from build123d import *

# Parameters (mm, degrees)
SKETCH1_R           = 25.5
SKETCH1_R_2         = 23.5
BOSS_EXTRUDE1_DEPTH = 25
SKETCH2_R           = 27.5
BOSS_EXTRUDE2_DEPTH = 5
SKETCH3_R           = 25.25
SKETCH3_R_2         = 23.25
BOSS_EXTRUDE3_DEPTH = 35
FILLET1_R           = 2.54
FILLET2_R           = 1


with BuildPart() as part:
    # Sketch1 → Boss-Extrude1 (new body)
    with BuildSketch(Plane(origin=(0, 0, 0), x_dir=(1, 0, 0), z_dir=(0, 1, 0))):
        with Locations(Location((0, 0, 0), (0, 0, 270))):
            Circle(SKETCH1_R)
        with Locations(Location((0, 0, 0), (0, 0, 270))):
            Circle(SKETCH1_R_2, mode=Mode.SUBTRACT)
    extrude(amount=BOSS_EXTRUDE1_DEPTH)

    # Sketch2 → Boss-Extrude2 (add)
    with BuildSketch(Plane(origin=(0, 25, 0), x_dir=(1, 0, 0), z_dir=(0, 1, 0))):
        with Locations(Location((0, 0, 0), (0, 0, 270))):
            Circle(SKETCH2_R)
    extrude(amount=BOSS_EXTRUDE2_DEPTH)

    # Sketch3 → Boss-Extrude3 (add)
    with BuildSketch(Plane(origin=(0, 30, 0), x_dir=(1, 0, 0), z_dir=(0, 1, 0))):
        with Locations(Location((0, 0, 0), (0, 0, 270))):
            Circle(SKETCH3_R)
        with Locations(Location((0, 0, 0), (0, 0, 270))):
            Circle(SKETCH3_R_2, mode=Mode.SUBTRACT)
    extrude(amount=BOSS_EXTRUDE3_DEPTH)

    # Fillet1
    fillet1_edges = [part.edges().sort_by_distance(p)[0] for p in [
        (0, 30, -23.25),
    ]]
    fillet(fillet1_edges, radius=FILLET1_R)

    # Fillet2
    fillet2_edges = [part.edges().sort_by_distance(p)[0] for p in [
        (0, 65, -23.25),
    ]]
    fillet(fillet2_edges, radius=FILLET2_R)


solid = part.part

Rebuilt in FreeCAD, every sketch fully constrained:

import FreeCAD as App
import Part
import Sketcher


def edges_at(feature, points):
    """Names of the edges that pass closest to the given points."""
    edges = feature.Shape.Edges
    near = lambda p: min(range(len(edges)), key=lambda i: edges[i].distToShape(Part.Vertex(*p))[0])
    return sorted({f"Edge{near(p) + 1}" for p in points})

doc = App.newDocument("Part")
body = doc.addObject("PartDesign::Body", "Body")

# Sketch on XZ plane
sketch1 = body.newObject("Sketcher::SketchObject", "Sketch")
sketch1.AttachmentSupport = (doc.getObject("XZ_Plane"), [""])
sketch1.MapMode = "FlatFace"
sketch1.addGeometry([
    Part.Circle(App.Vector(0, 0, 0), App.Vector(0, 0, 1), 26),
    Part.Circle(App.Vector(0, 0, 0), App.Vector(0, 0, 1), 24),
], False)
sketch1.addConstraint([
    Sketcher.Constraint("Coincident", 0, 3, -1, 1),
    Sketcher.Constraint("Coincident", 1, 3, -1, 1),
    Sketcher.Constraint("Diameter", 0, 51.0),
    Sketcher.Constraint("Diameter", 1, 47.0),
])
pad1 = body.newObject("PartDesign::Pad", "Pad")
pad1.Profile = sketch1
pad1.Length = 25
pad1.Reversed = True

# Sketch on XZ plane
sketch2 = body.newObject("Sketcher::SketchObject", "Sketch001")
sketch2.AttachmentSupport = (doc.getObject("XZ_Plane"), [""])
sketch2.MapMode = "FlatFace"
sketch2.AttachmentOffset = App.Placement(App.Vector(0, 0, -25), App.Rotation())
sketch2.addGeometry(Part.Circle(App.Vector(0, 0, 0), App.Vector(0, 0, 1), 28), False)
sketch2.addConstraint([
    Sketcher.Constraint("Coincident", 0, 3, -1, 1),
    Sketcher.Constraint("Diameter", 0, 55.0),
])
pad2 = body.newObject("PartDesign::Pad", "Pad001")
pad2.Profile = sketch2
pad2.Length = 5
pad2.Reversed = True

# Sketch on XZ plane
sketch3 = body.newObject("Sketcher::SketchObject", "Sketch002")
sketch3.AttachmentSupport = (doc.getObject("XZ_Plane"), [""])
sketch3.MapMode = "FlatFace"
sketch3.AttachmentOffset = App.Placement(App.Vector(0, 0, -30), App.Rotation())
sketch3.addGeometry([
    Part.Circle(App.Vector(0, 0, 0), App.Vector(0, 0, 1), 25),
    Part.Circle(App.Vector(0, 0, 0), App.Vector(0, 0, 1), 23),
], False)
sketch3.addConstraint([
    Sketcher.Constraint("Coincident", 0, 3, -1, 1),
    Sketcher.Constraint("Coincident", 1, 3, -1, 1),
    Sketcher.Constraint("Diameter", 0, 50.5),
    Sketcher.Constraint("Diameter", 1, 46.5),
])
pad3 = body.newObject("PartDesign::Pad", "Pad002")
pad3.Profile = sketch3
pad3.Length = 35
pad3.Reversed = True
doc.recompute()

fillet = body.newObject("PartDesign::Fillet", "Fillet")
fillet.Base = (pad3, edges_at(pad3, [(0, 30, -23.25)]))
fillet.Radius = 2.54
doc.recompute()

fillet2 = body.newObject("PartDesign::Fillet", "Fillet001")
fillet2.Base = (fillet, edges_at(fillet, [(0, 65, -23.25)]))
fillet2.Radius = 1

doc.recompute()
